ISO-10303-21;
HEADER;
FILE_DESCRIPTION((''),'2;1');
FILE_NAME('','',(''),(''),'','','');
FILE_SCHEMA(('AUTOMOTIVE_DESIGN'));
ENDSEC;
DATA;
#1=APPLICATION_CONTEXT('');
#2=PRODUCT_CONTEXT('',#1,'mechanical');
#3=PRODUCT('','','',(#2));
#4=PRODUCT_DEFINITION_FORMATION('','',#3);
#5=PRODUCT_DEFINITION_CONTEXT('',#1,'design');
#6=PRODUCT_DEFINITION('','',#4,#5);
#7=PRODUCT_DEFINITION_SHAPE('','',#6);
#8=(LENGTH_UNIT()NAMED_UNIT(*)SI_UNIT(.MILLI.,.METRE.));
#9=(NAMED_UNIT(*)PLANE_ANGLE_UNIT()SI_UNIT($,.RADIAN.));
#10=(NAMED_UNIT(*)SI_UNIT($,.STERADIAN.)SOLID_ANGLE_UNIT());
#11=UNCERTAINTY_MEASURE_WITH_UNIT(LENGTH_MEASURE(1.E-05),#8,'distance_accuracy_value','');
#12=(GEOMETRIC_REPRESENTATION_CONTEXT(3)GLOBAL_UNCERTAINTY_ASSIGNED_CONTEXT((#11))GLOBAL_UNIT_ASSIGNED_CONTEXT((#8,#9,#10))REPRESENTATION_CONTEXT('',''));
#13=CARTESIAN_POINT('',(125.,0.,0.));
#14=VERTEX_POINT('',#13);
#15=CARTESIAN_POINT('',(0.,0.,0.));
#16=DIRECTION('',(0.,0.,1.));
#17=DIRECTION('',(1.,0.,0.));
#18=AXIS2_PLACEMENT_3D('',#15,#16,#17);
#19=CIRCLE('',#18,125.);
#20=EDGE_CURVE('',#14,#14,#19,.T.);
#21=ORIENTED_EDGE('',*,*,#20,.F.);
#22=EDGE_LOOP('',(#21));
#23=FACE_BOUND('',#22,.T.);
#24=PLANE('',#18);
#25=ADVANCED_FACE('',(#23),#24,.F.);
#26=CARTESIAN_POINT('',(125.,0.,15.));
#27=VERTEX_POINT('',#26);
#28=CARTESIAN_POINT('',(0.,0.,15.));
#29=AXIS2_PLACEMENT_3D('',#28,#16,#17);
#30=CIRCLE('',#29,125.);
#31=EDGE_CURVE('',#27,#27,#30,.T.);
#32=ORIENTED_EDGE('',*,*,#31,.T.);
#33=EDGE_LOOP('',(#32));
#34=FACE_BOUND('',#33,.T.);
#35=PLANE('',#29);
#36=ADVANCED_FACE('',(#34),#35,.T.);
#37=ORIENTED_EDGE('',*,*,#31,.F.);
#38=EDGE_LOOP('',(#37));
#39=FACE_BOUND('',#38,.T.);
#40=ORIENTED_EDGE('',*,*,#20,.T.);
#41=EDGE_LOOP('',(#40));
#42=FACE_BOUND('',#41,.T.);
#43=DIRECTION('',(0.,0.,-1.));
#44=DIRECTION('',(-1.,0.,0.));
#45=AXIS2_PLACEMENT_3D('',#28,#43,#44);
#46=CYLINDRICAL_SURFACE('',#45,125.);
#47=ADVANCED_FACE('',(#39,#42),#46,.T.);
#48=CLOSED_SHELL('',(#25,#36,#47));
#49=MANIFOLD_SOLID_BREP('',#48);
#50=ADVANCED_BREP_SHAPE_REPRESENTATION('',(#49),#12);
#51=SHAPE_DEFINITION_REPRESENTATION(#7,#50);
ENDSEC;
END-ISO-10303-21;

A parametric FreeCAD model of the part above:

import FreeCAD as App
import Part
import Sketcher
from FreeCAD import Vector
Q = App.Units.Quantity

doc = App.newDocument("Part")
body = doc.addObject("PartDesign::Body", "Body")

sketch1 = body.newObject("Sketcher::SketchObject", "Sketch")
sketch1.AttachmentSupport = (doc.getObject("XY_Plane"), [""])
sketch1.MapMode = "FlatFace"
sketch1.addGeometry(Part.Circle(Vector(0, 0, 0), Vector(0, 0, 1), 125), False)
sketch1.addConstraint([
    Sketcher.Constraint("Coincident", 0, 3, -1, 1),
    Sketcher.Constraint("Diameter", 0, Q("250 mm")),
])
pad1 = body.newObject("PartDesign::Pad", "Pad")
pad1.Profile = sketch1
pad1.Length = 15

doc.recompute()
